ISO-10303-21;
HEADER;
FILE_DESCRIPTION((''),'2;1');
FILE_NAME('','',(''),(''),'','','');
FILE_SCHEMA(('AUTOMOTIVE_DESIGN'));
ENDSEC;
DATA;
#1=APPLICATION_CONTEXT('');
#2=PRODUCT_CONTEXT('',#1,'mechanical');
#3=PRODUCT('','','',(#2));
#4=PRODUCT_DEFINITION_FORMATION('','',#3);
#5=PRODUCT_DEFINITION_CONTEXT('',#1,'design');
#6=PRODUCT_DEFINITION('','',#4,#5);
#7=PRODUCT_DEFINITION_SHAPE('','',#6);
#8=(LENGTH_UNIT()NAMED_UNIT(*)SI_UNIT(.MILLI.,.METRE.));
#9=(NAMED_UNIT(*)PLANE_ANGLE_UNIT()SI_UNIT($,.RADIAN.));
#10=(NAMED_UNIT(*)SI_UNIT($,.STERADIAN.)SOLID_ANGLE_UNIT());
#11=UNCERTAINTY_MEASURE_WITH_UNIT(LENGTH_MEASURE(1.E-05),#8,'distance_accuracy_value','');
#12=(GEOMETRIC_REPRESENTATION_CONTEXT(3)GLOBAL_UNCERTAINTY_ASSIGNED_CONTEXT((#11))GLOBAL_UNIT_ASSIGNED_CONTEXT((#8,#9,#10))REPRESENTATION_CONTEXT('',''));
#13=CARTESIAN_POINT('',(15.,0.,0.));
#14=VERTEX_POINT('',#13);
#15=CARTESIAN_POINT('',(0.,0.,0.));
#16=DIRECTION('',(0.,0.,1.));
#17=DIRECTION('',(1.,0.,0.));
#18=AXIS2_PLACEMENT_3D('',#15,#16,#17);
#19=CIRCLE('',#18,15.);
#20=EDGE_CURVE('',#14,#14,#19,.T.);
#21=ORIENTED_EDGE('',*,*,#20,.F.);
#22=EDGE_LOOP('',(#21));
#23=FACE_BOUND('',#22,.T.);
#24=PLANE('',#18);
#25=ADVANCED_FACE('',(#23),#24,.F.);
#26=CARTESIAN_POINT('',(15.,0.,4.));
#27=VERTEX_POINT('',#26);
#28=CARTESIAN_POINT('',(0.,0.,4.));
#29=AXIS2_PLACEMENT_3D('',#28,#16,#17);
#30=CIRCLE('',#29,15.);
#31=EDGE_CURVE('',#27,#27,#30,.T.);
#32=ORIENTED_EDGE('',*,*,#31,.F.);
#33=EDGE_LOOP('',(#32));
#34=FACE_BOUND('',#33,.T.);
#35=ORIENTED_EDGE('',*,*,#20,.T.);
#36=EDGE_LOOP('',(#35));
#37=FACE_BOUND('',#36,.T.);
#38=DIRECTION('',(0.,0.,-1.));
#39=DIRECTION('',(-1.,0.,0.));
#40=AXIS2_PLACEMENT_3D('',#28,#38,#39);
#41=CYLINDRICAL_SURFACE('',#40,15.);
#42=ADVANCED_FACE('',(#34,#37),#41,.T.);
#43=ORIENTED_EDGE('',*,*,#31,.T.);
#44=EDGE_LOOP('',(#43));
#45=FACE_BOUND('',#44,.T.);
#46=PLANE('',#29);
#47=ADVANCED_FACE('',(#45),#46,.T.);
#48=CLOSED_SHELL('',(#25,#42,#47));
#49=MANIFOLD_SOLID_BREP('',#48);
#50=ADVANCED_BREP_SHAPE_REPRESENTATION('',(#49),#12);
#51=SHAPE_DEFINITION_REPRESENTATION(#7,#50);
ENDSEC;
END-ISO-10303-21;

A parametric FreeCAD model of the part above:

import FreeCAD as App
import Part
import Sketcher

V = App.Vector

doc = App.newDocument("Part")
params = doc.addObject("Spreadsheet::Sheet", "Params")
for row, (alias, value) in enumerate([
    ("sketch1_diameter", "30 mm"),
    ("pad1_length", "4 mm"),
], start=1):
    params.set(f"A{row}", alias)
    params.set(f"B{row}", "=" + value)
    params.setAlias(f"B{row}", alias)

body = doc.addObject("PartDesign::Body", "Body")

# Sketch on XY plane
sketch1 = body.newObject("Sketcher::SketchObject", "Sketch")
sketch1.AttachmentSupport = (doc.getObject("XY_Plane"), [""])
sketch1.MapMode = "FlatFace"
sketch1.addGeometry(Part.Circle(V(0, 0, 0), V(0, 0, 1), 15), False)
sketch1.addConstraint([
    Sketcher.Constraint("Coincident", 0, 3, -1, 1),
    Sketcher.Constraint("Diameter", 0, 30.0),
])
sketch1.setExpression("Constraints[1]", "Params.sketch1_diameter")
pad1 = body.newObject("PartDesign::Pad", "Pad")
pad1.Profile = sketch1
pad1.setExpression("Length", "Params.pad1_length")

doc.recompute()
